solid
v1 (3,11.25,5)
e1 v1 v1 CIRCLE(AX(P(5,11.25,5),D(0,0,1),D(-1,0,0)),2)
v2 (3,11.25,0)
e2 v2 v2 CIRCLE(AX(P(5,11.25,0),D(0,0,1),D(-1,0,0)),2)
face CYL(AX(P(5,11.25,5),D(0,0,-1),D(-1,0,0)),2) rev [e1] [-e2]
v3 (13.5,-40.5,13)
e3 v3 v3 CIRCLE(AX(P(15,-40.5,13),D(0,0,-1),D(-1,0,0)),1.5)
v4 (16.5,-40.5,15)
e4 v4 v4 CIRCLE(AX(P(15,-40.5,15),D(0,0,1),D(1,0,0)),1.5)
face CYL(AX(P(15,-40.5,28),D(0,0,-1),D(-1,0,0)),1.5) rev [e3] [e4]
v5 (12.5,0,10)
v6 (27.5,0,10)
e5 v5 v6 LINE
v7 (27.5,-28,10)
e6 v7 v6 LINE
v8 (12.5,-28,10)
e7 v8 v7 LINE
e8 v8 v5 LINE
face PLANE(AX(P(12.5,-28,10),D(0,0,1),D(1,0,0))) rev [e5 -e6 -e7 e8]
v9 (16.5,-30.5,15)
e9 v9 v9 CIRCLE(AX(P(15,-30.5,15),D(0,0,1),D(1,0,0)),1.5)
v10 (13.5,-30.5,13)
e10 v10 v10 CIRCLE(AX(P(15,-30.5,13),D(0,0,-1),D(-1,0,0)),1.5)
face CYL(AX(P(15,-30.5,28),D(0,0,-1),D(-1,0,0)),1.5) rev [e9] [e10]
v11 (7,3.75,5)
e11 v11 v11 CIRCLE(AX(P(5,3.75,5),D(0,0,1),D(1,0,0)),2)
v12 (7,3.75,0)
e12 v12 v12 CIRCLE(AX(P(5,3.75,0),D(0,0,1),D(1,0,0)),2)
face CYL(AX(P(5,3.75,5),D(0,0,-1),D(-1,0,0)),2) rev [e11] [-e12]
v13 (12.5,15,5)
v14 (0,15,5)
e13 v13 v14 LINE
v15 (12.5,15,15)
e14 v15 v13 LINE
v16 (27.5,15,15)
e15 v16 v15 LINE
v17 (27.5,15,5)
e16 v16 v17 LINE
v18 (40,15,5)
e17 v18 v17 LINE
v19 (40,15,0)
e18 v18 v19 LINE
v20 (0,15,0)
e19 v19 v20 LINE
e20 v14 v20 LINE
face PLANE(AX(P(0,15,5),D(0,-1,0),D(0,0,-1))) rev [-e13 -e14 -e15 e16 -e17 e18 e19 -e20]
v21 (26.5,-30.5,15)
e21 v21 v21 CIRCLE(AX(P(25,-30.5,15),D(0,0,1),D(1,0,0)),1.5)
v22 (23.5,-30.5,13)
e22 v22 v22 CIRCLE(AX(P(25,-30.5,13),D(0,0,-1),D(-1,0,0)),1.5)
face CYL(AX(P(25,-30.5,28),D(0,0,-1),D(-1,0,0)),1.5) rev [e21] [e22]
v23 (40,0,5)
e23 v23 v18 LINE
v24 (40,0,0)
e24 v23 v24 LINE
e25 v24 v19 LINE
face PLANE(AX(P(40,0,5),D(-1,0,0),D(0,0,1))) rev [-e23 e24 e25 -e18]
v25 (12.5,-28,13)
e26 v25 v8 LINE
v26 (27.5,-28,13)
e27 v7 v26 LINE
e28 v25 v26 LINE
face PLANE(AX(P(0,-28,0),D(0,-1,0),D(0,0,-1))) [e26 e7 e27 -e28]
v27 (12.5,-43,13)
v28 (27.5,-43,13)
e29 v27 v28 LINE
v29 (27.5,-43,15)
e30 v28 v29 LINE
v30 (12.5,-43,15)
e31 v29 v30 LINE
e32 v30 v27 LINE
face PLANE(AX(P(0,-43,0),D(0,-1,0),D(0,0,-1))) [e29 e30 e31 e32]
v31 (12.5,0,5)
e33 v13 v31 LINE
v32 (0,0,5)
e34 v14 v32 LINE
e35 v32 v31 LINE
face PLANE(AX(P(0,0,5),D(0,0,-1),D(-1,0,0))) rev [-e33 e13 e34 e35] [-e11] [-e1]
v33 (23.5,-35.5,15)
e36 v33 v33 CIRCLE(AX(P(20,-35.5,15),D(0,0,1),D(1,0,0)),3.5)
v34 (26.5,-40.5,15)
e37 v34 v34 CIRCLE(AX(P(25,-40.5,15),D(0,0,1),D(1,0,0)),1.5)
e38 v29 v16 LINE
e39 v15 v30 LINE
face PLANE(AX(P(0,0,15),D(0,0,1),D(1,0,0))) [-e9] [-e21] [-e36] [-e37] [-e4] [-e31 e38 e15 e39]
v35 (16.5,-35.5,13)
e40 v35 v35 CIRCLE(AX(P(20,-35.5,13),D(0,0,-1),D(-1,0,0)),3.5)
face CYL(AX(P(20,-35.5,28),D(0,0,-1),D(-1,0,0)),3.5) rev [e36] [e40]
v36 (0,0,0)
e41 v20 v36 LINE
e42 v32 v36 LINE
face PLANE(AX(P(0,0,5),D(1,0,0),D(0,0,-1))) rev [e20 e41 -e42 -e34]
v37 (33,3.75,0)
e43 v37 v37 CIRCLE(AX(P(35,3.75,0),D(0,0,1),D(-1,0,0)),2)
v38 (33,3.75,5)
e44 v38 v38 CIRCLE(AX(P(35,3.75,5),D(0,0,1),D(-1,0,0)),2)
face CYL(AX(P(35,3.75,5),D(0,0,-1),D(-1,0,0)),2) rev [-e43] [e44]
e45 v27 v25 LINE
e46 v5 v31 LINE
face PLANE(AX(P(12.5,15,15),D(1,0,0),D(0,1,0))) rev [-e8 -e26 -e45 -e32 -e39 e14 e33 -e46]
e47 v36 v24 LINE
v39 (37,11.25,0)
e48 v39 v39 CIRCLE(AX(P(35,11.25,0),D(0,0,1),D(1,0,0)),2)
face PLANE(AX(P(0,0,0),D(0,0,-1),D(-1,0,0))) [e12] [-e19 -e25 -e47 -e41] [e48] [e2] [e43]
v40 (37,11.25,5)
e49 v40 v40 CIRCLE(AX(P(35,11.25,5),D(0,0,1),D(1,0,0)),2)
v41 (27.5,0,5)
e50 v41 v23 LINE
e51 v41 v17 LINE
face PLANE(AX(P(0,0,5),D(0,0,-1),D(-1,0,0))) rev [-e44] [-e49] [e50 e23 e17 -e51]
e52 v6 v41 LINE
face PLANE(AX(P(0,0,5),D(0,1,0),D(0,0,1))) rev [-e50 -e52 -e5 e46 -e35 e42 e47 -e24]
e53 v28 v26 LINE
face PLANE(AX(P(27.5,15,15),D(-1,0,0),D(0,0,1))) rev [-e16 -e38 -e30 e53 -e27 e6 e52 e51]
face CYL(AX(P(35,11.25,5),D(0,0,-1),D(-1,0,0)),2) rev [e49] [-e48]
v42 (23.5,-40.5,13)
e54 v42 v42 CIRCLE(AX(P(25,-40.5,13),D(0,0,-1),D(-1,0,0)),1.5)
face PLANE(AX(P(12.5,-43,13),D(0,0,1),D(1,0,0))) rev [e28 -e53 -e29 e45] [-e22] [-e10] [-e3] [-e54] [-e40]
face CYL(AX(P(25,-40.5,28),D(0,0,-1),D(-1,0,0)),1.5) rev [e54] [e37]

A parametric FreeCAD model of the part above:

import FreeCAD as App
import Part
import Sketcher
from FreeCAD import Vector

doc = App.newDocument("Part")
body = doc.addObject("PartDesign::Body", "Body")

# Sketch on XY plane
sketch1 = doc.addObject("Sketcher::SketchObject", "Sketch")
body.addObject(sketch1)
sketch1.AttachmentSupport = (doc.XY_Plane, [""])
sketch1.MapMode = "FlatFace"
sketch1.addGeometry([
    Part.LineSegment(Vector(0, 15, 0), Vector(0, 0, 0)),  # 0
    Part.LineSegment(Vector(0, 0, 0), Vector(40, 0, 0)),  # 1
    Part.LineSegment(Vector(40, 0, 0), Vector(40, 15, 0)),  # 2
    Part.LineSegment(Vector(40, 15, 0), Vector(0, 15, 0)),  # 3
    Part.Circle(Vector(5, 3.8, 0), Vector(0, 0, 1), 2),  # 4
    Part.Circle(Vector(35, 3.8, 0), Vector(0, 0, 1), 2),  # 5
    Part.Circle(Vector(5, 11.2, 0), Vector(0, 0, 1), 2),  # 6
    Part.Circle(Vector(35, 11.2, 0), Vector(0, 0, 1), 2),  # 7
], False)
sketch1.addConstraint([
    Sketcher.Constraint("Coincident", 0, 2, 1, 1),
    Sketcher.Constraint("Coincident", 1, 2, 2, 1),
    Sketcher.Constraint("Coincident", 2, 2, 3, 1),
    Sketcher.Constraint("Coincident", 3, 2, 0, 1),
    Sketcher.Constraint("Vertical", 0),
    Sketcher.Constraint("Horizontal", 1),
    Sketcher.Constraint("Vertical", 2),
    Sketcher.Constraint("Horizontal", 3),
    Sketcher.Constraint("Coincident", 0, 2, -1, 1),
    Sketcher.Constraint("Equal", 4, 5),
    Sketcher.Constraint("Equal", 5, 6),
    Sketcher.Constraint("Equal", 6, 7),
    Sketcher.Constraint("Horizontal", 4, 3, 5, 3),
    Sketcher.Constraint("Horizontal", 6, 3, 7, 3),
    Sketcher.Constraint("Vertical", 4, 3, 6, 3),
    Sketcher.Constraint("Vertical", 5, 3, 7, 3),
    Sketcher.Constraint("Diameter", 4, 4.0),
    Sketcher.Constraint("DistanceX", 1, 1, 1, 2, 40.0),
    Sketcher.Constraint("DistanceY", 0, 2, 0, 1, 15.0),
    Sketcher.Constraint("DistanceX", -1, 1, 4, 3, 5.0),
    Sketcher.Constraint("DistanceX", -1, 1, 5, 3, 35.0),
    Sketcher.Constraint("DistanceY", 4, 3, 6, 3, 7.5),
    Sketcher.Constraint("DistanceY", -1, 1, 4, 3, 3.75),
])
pad1 = doc.addObject("PartDesign::Pad", "Pad")
body.addObject(pad1)
pad1.Profile = sketch1
pad1.Length = 5

# Sketch on XY plane
sketch2 = doc.addObject("Sketcher::SketchObject", "Sketch001")
body.addObject(sketch2)
sketch2.AttachmentSupport = (doc.XY_Plane, [""])
sketch2.MapMode = "FlatFace"
sketch2.AttachmentOffset = App.Placement(Vector(0, 0, 5), App.Rotation())
sketch2.addGeometry([
    Part.LineSegment(Vector(12, 15, 0), Vector(12, 0, 0)),
    Part.LineSegment(Vector(12, 0, 0), Vector(28, 0, 0)),
    Part.LineSegment(Vector(28, 0, 0), Vector(28, 15, 0)),
    Part.LineSegment(Vector(28, 15, 0), Vector(12, 15, 0)),
], False)
sketch2.addConstraint([
    Sketcher.Constraint("Coincident", 0, 2, 1, 1),
    Sketcher.Constraint("Coincident", 1, 2, 2, 1),
    Sketcher.Constraint("Coincident", 2, 2, 3, 1),
    Sketcher.Constraint("Coincident", 3, 2, 0, 1),
    Sketcher.Constraint("Vertical", 0),
    Sketcher.Constraint("Horizontal", 1),
    Sketcher.Constraint("Vertical", 2),
    Sketcher.Constraint("Horizontal", 3),
    Sketcher.Constraint("PointOnObject", 0, 2, -1),
    Sketcher.Constraint("Equal", 3, 0),
    Sketcher.Constraint("DistanceX", 1, 1, 1, 2, 15.0),
    Sketcher.Constraint("DistanceX", -1, 1, 0, 2, 12.5),
])
pad2 = doc.addObject("PartDesign::Pad", "Pad001")
body.addObject(pad2)
pad2.Profile = sketch2
pad2.Length = 10

# Sketch on XZ plane
sketch3 = doc.addObject("Sketcher::SketchObject", "Sketch002")
body.addObject(sketch3)
sketch3.AttachmentSupport = (doc.XZ_Plane, [""])
sketch3.MapMode = "FlatFace"
sketch3.addGeometry([
    Part.LineSegment(Vector(12, 15, 0), Vector(12, 10, 0)),
    Part.LineSegment(Vector(12, 10, 0), Vector(28, 10, 0)),
    Part.LineSegment(Vector(28, 10, 0), Vector(28, 15, 0)),
    Part.LineSegment(Vector(28, 15, 0), Vector(12, 15, 0)),
], False)
sketch3.addConstraint([
    Sketcher.Constraint("Coincident", 0, 2, 1, 1),
    Sketcher.Constraint("Coincident", 1, 2, 2, 1),
    Sketcher.Constraint("Coincident", 2, 2, 3, 1),
    Sketcher.Constraint("Coincident", 3, 2, 0, 1),
    Sketcher.Constraint("Vertical", 0),
    Sketcher.Constraint("Horizontal", 1),
    Sketcher.Constraint("Vertical", 2),
    Sketcher.Constraint("Horizontal", 3),
    Sketcher.Constraint("DistanceX", 1, 1, 1, 2, 15.0),
    Sketcher.Constraint("DistanceY", 0, 2, 0, 1, 5.0),
    Sketcher.Constraint("DistanceY", -1, 1, 0, 2, 10.0),
    Sketcher.Constraint("DistanceX", -1, 1, 0, 2, 12.5),
])
pad3 = doc.addObject("PartDesign::Pad", "Pad002")
body.addObject(pad3)
pad3.Profile = sketch3
pad3.Length = 28

# Sketch on XZ plane
sketch4 = doc.addObject("Sketcher::SketchObject", "Sketch003")
body.addObject(sketch4)
sketch4.AttachmentSupport = (doc.XZ_Plane, [""])
sketch4.MapMode = "FlatFace"
sketch4.AttachmentOffset = App.Placement(Vector(0, 0, 28), App.Rotation())
sketch4.addGeometry([
    Part.LineSegment(Vector(12.5, 15, 0), Vector(12.5, 13, 0)),
    Part.LineSegment(Vector(12.5, 13, 0), Vector(27.5, 13, 0)),
    Part.LineSegment(Vector(27.5, 13, 0), Vector(27.5, 15, 0)),
    Part.LineSegment(Vector(27.5, 15, 0), Vector(12.5, 15, 0)),
], False)
sketch4.addConstraint([
    Sketcher.Constraint("Coincident", 0, 2, 1, 1),
    Sketcher.Constraint("Coincident", 1, 2, 2, 1),
    Sketcher.Constraint("Coincident", 2, 2, 3, 1),
    Sketcher.Constraint("Coincident", 3, 2, 0, 1),
    Sketcher.Constraint("Vertical", 0),
    Sketcher.Constraint("Horizontal", 1),
    Sketcher.Constraint("Vertical", 2),
    Sketcher.Constraint("Horizontal", 3),
    Sketcher.Constraint("DistanceX", 1, 1, 1, 2, 15.0),
    Sketcher.Constraint("DistanceY", 0, 2, 0, 1, 2.0),
    Sketcher.Constraint("DistanceY", -1, 1, 0, 2, 13.0),
    Sketcher.Constraint("DistanceX", -1, 1, 0, 2, 12.5),
])
pad4 = doc.addObject("PartDesign::Pad", "Pad003")
body.addObject(pad4)
pad4.Profile = sketch4
pad4.Length = 15

# Sketch on XY plane
sketch5 = doc.addObject("Sketcher::SketchObject", "Sketch004")
body.addObject(sketch5)
sketch5.AttachmentSupport = (doc.XY_Plane, [""])
sketch5.MapMode = "FlatFace"
sketch5.AttachmentOffset = App.Placement(Vector(0, 0, 13), App.Rotation())
sketch5.addGeometry([
    Part.Circle(Vector(15, -30.5, 0), Vector(0, 0, 1), 1.5),  # 0
    Part.Circle(Vector(25, -30.5, 0), Vector(0, 0, 1), 1.5),  # 1
    Part.Circle(Vector(20, -35.5, 0), Vector(0, 0, 1), 3.5),  # 2
    Part.Circle(Vector(15, -40.5, 0), Vector(0, 0, 1), 1.5),  # 3
    Part.Circle(Vector(25, -40.5, 0), Vector(0, 0, 1), 1.5),  # 4
], False)
sketch5.addConstraint([
    Sketcher.Constraint("Equal", 0, 1),
    Sketcher.Constraint("Equal", 1, 3),
    Sketcher.Constraint("Equal", 3, 4),
    Sketcher.Constraint("Horizontal", 0, 3, 1, 3),
    Sketcher.Constraint("Horizontal", 3, 3, 4, 3),
    Sketcher.Constraint("Vertical", 0, 3, 3, 3),
    Sketcher.Constraint("Vertical", 1, 3, 4, 3),
    Sketcher.Constraint("Diameter", 0, 3.0),
    Sketcher.Constraint("Diameter", 2, 7.0),
    Sketcher.Constraint("DistanceX", -1, 1, 0, 3, 15.0),
    Sketcher.Constraint("DistanceX", -1, 1, 1, 3, 25.0),
    Sketcher.Constraint("DistanceX", -1, 1, 2, 3, 20.0),
    Sketcher.Constraint("DistanceY", 2, 3, 0, 3, 5.0),
    Sketcher.Constraint("DistanceY", 3, 3, 2, 3, 5.0),
    Sketcher.Constraint("DistanceY", 0, 3, -1, 1, 30.5),
])
pocket1 = doc.addObject("PartDesign::Pocket", "Pocket")
body.addObject(pocket1)
pocket1.Profile = sketch5
pocket1.Length = 15
pocket1.Reversed = True

doc.recompute()
